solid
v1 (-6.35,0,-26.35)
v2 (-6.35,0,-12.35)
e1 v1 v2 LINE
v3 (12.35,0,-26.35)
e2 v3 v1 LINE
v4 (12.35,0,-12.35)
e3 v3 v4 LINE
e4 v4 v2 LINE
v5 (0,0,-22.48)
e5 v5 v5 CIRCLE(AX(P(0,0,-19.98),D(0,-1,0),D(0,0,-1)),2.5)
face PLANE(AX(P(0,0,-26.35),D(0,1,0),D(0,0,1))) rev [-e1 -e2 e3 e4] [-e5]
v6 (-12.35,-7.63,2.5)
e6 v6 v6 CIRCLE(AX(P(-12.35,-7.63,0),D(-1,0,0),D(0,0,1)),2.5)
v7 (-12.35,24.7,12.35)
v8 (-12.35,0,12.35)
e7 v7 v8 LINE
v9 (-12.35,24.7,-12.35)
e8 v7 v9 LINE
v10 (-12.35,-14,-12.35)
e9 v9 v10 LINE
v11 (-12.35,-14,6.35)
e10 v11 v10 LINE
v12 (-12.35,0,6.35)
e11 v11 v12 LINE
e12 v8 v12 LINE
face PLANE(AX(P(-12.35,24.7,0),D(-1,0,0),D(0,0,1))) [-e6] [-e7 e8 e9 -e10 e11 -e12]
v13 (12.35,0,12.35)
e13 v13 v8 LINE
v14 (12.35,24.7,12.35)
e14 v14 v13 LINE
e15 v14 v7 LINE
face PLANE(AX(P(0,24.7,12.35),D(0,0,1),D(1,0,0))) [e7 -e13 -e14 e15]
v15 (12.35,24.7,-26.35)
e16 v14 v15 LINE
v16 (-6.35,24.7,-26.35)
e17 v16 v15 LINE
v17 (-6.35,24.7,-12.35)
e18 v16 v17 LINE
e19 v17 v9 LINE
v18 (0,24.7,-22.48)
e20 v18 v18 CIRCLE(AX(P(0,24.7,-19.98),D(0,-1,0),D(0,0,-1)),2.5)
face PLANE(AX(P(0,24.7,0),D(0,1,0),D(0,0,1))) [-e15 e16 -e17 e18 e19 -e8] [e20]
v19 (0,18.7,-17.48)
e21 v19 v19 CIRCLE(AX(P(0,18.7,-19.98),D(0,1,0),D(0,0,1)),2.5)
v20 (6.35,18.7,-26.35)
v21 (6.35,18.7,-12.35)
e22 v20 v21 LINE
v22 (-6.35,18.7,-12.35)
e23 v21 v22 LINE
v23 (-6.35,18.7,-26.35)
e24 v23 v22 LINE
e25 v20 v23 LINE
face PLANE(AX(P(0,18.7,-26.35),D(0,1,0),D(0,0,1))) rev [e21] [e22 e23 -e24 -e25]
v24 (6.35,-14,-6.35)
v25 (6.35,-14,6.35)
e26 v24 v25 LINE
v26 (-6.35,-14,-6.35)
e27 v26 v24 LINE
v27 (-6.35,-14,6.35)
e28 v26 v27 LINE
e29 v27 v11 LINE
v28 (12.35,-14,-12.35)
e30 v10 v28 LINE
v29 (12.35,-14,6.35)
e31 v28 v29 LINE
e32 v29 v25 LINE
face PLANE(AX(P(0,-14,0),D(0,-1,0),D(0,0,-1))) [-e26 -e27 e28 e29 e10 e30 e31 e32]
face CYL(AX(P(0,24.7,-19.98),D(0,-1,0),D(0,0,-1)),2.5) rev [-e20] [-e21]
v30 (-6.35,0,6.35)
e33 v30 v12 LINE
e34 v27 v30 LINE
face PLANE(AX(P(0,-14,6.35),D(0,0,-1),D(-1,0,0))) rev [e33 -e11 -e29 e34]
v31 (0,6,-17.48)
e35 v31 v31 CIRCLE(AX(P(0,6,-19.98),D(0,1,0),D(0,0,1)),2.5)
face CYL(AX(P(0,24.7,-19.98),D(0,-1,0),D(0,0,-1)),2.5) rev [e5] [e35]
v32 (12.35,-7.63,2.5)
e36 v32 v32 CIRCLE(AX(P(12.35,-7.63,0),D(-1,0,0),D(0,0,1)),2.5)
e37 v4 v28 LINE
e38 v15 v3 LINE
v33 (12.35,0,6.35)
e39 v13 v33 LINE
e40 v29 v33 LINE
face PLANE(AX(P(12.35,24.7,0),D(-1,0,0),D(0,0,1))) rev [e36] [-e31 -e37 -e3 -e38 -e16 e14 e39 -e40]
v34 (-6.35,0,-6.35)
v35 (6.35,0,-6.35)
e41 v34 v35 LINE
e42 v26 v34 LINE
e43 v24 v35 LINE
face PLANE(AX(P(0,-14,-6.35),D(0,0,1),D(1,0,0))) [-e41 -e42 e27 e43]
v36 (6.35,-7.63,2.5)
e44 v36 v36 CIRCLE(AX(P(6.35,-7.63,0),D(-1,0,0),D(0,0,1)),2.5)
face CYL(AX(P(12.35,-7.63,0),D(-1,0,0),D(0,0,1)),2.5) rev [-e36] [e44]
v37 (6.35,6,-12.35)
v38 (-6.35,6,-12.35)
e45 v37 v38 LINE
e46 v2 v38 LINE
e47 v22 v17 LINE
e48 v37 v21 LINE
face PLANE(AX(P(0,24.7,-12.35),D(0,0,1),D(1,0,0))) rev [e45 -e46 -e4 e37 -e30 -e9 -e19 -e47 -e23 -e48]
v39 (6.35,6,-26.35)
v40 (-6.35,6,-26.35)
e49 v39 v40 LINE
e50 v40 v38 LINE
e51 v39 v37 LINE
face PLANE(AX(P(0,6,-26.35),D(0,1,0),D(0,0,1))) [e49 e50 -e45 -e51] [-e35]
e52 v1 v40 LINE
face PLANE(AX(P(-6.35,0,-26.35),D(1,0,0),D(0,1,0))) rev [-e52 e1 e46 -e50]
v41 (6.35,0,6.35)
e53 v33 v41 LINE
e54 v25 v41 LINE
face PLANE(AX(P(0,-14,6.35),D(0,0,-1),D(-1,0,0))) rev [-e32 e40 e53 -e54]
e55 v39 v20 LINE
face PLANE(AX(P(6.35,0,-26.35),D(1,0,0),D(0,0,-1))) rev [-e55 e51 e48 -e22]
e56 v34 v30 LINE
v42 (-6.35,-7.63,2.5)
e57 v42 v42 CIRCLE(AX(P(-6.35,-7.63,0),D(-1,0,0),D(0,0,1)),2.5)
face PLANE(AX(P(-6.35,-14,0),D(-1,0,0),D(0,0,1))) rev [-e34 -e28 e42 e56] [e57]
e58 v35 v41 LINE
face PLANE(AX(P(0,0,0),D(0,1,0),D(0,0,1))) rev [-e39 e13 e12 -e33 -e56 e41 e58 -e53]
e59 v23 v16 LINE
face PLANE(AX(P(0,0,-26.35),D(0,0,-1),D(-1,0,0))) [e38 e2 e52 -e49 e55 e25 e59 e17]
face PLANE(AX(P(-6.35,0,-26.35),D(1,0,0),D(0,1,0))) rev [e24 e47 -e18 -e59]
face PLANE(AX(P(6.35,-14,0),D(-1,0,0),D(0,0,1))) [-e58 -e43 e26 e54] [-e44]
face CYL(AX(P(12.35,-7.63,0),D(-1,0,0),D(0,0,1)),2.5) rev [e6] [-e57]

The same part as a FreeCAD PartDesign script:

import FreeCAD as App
import Part
import Sketcher
from FreeCAD import Vector

doc = App.newDocument("Part")
body = doc.addObject("PartDesign::Body", "Body")

# Sketch on XZ plane
sketch1 = body.newObject("Sketcher::SketchObject", "Sketch")
sketch1.AttachmentSupport = (doc.getObject("XZ_Plane"), [""])
sketch1.MapMode = "FlatFace"
sketch1.addGeometry(Part.LineSegment(Vector(-12, -12, 0), Vector(-12, 12, 0)), False)
sketch1.addGeometry(Part.LineSegment(Vector(-12, 12, 0), Vector(12, 12, 0)), False)
sketch1.addGeometry(Part.LineSegment(Vector(12, 12, 0), Vector(12, -12, 0)), False)
sketch1.addGeometry(Part.LineSegment(Vector(12, -12, 0), Vector(-12, -12, 0)), False)
sketch1.addConstraint(Sketcher.Constraint("Coincident", 0, 2, 1, 1))
sketch1.addConstraint(Sketcher.Constraint("Coincident", 1, 2, 2, 1))
sketch1.addConstraint(Sketcher.Constraint("Coincident", 2, 2, 3, 1))
sketch1.addConstraint(Sketcher.Constraint("Coincident", 3, 2, 0, 1))
sketch1.addConstraint(Sketcher.Constraint("Vertical", 0))
sketch1.addConstraint(Sketcher.Constraint("Horizontal", 1))
sketch1.addConstraint(Sketcher.Constraint("Vertical", 2))
sketch1.addConstraint(Sketcher.Constraint("Horizontal", 3))
sketch1.addConstraint(Sketcher.Constraint("Symmetric", 0, 2, 2, 2, -1, 1))
sketch1.addConstraint(Sketcher.Constraint("Equal", 3, 0))
sketch1.addConstraint(Sketcher.Constraint("DistanceX", 1, 1, 1, 2, 24.7))
pad1 = body.newObject("PartDesign::Pad", "Pad")
pad1.Profile = sketch1
pad1.Length = 24.7
pad1.Reversed = True

# Sketch on XZ plane
sketch2 = body.newObject("Sketcher::SketchObject", "Sketch001")
sketch2.AttachmentSupport = (doc.getObject("XZ_Plane"), [""])
sketch2.MapMode = "FlatFace"
sketch2.addGeometry(Part.LineSegment(Vector(-6, -6, 0), Vector(-6, 6, 0)), False)
sketch2.addGeometry(Part.LineSegment(Vector(-6, 6, 0), Vector(-12, 6, 0)), False)
sketch2.addGeometry(Part.LineSegment(Vector(-12, 6, 0), Vector(-12, -12, 0)), False)
sketch2.addGeometry(Part.LineSegment(Vector(-12, -12, 0), Vector(12, -12, 0)), False)
sketch2.addGeometry(Part.LineSegment(Vector(12, -12, 0), Vector(12, 6, 0)), False)
sketch2.addGeometry(Part.LineSegment(Vector(12, 6, 0), Vector(6, 6, 0)), False)
sketch2.addGeometry(Part.LineSegment(Vector(6, 6, 0), Vector(6, -6, 0)), False)
sketch2.addGeometry(Part.LineSegment(Vector(6, -6, 0), Vector(-6, -6, 0)), False)
sketch2.addConstraint(Sketcher.Constraint("Coincident", 0, 2, 1, 1))
sketch2.addConstraint(Sketcher.Constraint("Coincident", 1, 2, 2, 1))
sketch2.addConstraint(Sketcher.Constraint("Coincident", 2, 2, 3, 1))
sketch2.addConstraint(Sketcher.Constraint("Coincident", 3, 2, 4, 1))
sketch2.addConstraint(Sketcher.Constraint("Coincident", 4, 2, 5, 1))
sketch2.addConstraint(Sketcher.Constraint("Coincident", 5, 2, 6, 1))
sketch2.addConstraint(Sketcher.Constraint("Coincident", 6, 2, 7, 1))
sketch2.addConstraint(Sketcher.Constraint("Coincident", 7, 2, 0, 1))
sketch2.addConstraint(Sketcher.Constraint("Vertical", 0))
sketch2.addConstraint(Sketcher.Constraint("Horizontal", 1))
sketch2.addConstraint(Sketcher.Constraint("Vertical", 2))
sketch2.addConstraint(Sketcher.Constraint("Horizontal", 3))
sketch2.addConstraint(Sketcher.Constraint("Vertical", 4))
sketch2.addConstraint(Sketcher.Constraint("Horizontal", 5))
sketch2.addConstraint(Sketcher.Constraint("Vertical", 6))
sketch2.addConstraint(Sketcher.Constraint("Horizontal", 7))
sketch2.addConstraint(Sketcher.Constraint("Symmetric", 0, 2, 6, 2, -1, 1))
sketch2.addConstraint(Sketcher.Constraint("Symmetric", 1, 2, 4, 2, -2))
sketch2.addConstraint(Sketcher.Constraint("Equal", 7, 0))
sketch2.addConstraint(Sketcher.Constraint("DistanceX", 1, 2, 1, 1, 6.0))
sketch2.addConstraint(Sketcher.Constraint("DistanceX", 3, 1, 3, 2, 24.7))
sketch2.addConstraint(Sketcher.Constraint("DistanceY", 2, 2, 2, 1, 18.7))
pad2 = body.newObject("PartDesign::Pad", "Pad001")
pad2.Profile = sketch2
pad2.Length = 14

# Sketch on XY plane
sketch3 = body.newObject("Sketcher::SketchObject", "Sketch002")
sketch3.AttachmentSupport = (doc.getObject("XY_Plane"), [""])
sketch3.MapMode = "FlatFace"
sketch3.AttachmentOffset = App.Placement(Vector(0, 0, -12.35), App.Rotation())
sketch3.addGeometry(Part.LineSegment(Vector(-6, 25, 0), Vector(12, 25, 0)), False)
sketch3.addGeometry(Part.LineSegment(Vector(12, 25, 0), Vector(12, 0, 0)), False)
sketch3.addGeometry(Part.LineSegment(Vector(12, 0, 0), Vector(-6, 0, 0)), False)
sketch3.addGeometry(Part.LineSegment(Vector(-6, 0, 0), Vector(-6, 6, 0)), False)
sketch3.addGeometry(Part.LineSegment(Vector(-6, 6, 0), Vector(6, 6, 0)), False)
sketch3.addGeometry(Part.LineSegment(Vector(6, 6, 0), Vector(6, 19, 0)), False)
sketch3.addGeometry(Part.LineSegment(Vector(6, 19, 0), Vector(-6, 19, 0)), False)
sketch3.addGeometry(Part.LineSegment(Vector(-6, 19, 0), Vector(-6, 25, 0)), False)
sketch3.addConstraint(Sketcher.Constraint("Coincident", 0, 2, 1, 1))
sketch3.addConstraint(Sketcher.Constraint("Coincident", 1, 2, 2, 1))
sketch3.addConstraint(Sketcher.Constraint("Coincident", 2, 2, 3, 1))
sketch3.addConstraint(Sketcher.Constraint("Coincident", 3, 2, 4, 1))
sketch3.addConstraint(Sketcher.Constraint("Coincident", 4, 2, 5, 1))
sketch3.addConstraint(Sketcher.Constraint("Coincident", 5, 2, 6, 1))
sketch3.addConstraint(Sketcher.Constraint("Coincident", 6, 2, 7, 1))
sketch3.addConstraint(Sketcher.Constraint("Coincident", 7, 2, 0, 1))
sketch3.addConstraint(Sketcher.Constraint("Horizontal", 0))
sketch3.addConstraint(Sketcher.Constraint("Vertical", 1))
sketch3.addConstraint(Sketcher.Constraint("Horizontal", 2))
sketch3.addConstraint(Sketcher.Constraint("Vertical", 3))
sketch3.addConstraint(Sketcher.Constraint("Horizontal", 4))
sketch3.addConstraint(Sketcher.Constraint("Vertical", 5))
sketch3.addConstraint(Sketcher.Constraint("Horizontal", 6))
sketch3.addConstraint(Sketcher.Constraint("Vertical", 7))
sketch3.addConstraint(Sketcher.Constraint("PointOnObject", 1, 2, -1))
sketch3.addConstraint(Sketcher.Constraint("Vertical", 3, 2, 6, 2))
sketch3.addConstraint(Sketcher.Constraint("Equal", 6, 5))
sketch3.addConstraint(Sketcher.Constraint("Equal", 3, 7))
sketch3.addConstraint(Sketcher.Constraint("DistanceY", 3, 1, 3, 2, 6.0))
sketch3.addConstraint(Sketcher.Constraint("DistanceX", 0, 1, 0, 2, 18.7))
sketch3.addConstraint(Sketcher.Constraint("DistanceX", 4, 1, 4, 2, 12.7))
sketch3.addConstraint(Sketcher.Constraint("DistanceX", -1, 1, 0, 2, 12.35))
pad3 = body.newObject("PartDesign::Pad", "Pad002")
pad3.Profile = sketch3
pad3.Length = 14
pad3.Reversed = True

# Sketch on XZ plane
sketch4 = body.newObject("Sketcher::SketchObject", "Sketch003")
sketch4.AttachmentSupport = (doc.getObject("XZ_Plane"), [""])
sketch4.MapMode = "FlatFace"
sketch4.addGeometry(Part.Circle(Vector(0, -20, 0), Vector(0, 0, 1), 2.5), False)
sketch4.addConstraint(Sketcher.Constraint("PointOnObject", 0, 3, -2))
sketch4.addConstraint(Sketcher.Constraint("Diameter", 0, 5.0))
sketch4.addConstraint(Sketcher.Constraint("DistanceY", 0, 3, -1, 1, 19.98))
pocket1 = body.newObject("PartDesign::Pocket", "Pocket")
pocket1.Profile = sketch4
pocket1.Type = "ThroughAll"

# Sketch on YZ plane
sketch5 = body.newObject("Sketcher::SketchObject", "Sketch004")
sketch5.AttachmentSupport = (doc.getObject("YZ_Plane"), [""])
sketch5.MapMode = "FlatFace"
sketch5.AttachmentOffset = App.Placement(Vector(0, 0, -12.35), App.Rotation())
sketch5.addGeometry(Part.Circle(Vector(-7.6, 0, 0), Vector(0, 0, 1), 2.5), False)
sketch5.addConstraint(Sketcher.Constraint("PointOnObject", 0, 3, -1))
sketch5.addConstraint(Sketcher.Constraint("Diameter", 0, 5.0))
sketch5.addConstraint(Sketcher.Constraint("DistanceX", 0, 3, -1, 1, 7.63))
pocket2 = body.newObject("PartDesign::Pocket", "Pocket001")
pocket2.Profile = sketch5
pocket2.Type = "ThroughAll"
pocket2.Reversed = True

doc.recompute()
